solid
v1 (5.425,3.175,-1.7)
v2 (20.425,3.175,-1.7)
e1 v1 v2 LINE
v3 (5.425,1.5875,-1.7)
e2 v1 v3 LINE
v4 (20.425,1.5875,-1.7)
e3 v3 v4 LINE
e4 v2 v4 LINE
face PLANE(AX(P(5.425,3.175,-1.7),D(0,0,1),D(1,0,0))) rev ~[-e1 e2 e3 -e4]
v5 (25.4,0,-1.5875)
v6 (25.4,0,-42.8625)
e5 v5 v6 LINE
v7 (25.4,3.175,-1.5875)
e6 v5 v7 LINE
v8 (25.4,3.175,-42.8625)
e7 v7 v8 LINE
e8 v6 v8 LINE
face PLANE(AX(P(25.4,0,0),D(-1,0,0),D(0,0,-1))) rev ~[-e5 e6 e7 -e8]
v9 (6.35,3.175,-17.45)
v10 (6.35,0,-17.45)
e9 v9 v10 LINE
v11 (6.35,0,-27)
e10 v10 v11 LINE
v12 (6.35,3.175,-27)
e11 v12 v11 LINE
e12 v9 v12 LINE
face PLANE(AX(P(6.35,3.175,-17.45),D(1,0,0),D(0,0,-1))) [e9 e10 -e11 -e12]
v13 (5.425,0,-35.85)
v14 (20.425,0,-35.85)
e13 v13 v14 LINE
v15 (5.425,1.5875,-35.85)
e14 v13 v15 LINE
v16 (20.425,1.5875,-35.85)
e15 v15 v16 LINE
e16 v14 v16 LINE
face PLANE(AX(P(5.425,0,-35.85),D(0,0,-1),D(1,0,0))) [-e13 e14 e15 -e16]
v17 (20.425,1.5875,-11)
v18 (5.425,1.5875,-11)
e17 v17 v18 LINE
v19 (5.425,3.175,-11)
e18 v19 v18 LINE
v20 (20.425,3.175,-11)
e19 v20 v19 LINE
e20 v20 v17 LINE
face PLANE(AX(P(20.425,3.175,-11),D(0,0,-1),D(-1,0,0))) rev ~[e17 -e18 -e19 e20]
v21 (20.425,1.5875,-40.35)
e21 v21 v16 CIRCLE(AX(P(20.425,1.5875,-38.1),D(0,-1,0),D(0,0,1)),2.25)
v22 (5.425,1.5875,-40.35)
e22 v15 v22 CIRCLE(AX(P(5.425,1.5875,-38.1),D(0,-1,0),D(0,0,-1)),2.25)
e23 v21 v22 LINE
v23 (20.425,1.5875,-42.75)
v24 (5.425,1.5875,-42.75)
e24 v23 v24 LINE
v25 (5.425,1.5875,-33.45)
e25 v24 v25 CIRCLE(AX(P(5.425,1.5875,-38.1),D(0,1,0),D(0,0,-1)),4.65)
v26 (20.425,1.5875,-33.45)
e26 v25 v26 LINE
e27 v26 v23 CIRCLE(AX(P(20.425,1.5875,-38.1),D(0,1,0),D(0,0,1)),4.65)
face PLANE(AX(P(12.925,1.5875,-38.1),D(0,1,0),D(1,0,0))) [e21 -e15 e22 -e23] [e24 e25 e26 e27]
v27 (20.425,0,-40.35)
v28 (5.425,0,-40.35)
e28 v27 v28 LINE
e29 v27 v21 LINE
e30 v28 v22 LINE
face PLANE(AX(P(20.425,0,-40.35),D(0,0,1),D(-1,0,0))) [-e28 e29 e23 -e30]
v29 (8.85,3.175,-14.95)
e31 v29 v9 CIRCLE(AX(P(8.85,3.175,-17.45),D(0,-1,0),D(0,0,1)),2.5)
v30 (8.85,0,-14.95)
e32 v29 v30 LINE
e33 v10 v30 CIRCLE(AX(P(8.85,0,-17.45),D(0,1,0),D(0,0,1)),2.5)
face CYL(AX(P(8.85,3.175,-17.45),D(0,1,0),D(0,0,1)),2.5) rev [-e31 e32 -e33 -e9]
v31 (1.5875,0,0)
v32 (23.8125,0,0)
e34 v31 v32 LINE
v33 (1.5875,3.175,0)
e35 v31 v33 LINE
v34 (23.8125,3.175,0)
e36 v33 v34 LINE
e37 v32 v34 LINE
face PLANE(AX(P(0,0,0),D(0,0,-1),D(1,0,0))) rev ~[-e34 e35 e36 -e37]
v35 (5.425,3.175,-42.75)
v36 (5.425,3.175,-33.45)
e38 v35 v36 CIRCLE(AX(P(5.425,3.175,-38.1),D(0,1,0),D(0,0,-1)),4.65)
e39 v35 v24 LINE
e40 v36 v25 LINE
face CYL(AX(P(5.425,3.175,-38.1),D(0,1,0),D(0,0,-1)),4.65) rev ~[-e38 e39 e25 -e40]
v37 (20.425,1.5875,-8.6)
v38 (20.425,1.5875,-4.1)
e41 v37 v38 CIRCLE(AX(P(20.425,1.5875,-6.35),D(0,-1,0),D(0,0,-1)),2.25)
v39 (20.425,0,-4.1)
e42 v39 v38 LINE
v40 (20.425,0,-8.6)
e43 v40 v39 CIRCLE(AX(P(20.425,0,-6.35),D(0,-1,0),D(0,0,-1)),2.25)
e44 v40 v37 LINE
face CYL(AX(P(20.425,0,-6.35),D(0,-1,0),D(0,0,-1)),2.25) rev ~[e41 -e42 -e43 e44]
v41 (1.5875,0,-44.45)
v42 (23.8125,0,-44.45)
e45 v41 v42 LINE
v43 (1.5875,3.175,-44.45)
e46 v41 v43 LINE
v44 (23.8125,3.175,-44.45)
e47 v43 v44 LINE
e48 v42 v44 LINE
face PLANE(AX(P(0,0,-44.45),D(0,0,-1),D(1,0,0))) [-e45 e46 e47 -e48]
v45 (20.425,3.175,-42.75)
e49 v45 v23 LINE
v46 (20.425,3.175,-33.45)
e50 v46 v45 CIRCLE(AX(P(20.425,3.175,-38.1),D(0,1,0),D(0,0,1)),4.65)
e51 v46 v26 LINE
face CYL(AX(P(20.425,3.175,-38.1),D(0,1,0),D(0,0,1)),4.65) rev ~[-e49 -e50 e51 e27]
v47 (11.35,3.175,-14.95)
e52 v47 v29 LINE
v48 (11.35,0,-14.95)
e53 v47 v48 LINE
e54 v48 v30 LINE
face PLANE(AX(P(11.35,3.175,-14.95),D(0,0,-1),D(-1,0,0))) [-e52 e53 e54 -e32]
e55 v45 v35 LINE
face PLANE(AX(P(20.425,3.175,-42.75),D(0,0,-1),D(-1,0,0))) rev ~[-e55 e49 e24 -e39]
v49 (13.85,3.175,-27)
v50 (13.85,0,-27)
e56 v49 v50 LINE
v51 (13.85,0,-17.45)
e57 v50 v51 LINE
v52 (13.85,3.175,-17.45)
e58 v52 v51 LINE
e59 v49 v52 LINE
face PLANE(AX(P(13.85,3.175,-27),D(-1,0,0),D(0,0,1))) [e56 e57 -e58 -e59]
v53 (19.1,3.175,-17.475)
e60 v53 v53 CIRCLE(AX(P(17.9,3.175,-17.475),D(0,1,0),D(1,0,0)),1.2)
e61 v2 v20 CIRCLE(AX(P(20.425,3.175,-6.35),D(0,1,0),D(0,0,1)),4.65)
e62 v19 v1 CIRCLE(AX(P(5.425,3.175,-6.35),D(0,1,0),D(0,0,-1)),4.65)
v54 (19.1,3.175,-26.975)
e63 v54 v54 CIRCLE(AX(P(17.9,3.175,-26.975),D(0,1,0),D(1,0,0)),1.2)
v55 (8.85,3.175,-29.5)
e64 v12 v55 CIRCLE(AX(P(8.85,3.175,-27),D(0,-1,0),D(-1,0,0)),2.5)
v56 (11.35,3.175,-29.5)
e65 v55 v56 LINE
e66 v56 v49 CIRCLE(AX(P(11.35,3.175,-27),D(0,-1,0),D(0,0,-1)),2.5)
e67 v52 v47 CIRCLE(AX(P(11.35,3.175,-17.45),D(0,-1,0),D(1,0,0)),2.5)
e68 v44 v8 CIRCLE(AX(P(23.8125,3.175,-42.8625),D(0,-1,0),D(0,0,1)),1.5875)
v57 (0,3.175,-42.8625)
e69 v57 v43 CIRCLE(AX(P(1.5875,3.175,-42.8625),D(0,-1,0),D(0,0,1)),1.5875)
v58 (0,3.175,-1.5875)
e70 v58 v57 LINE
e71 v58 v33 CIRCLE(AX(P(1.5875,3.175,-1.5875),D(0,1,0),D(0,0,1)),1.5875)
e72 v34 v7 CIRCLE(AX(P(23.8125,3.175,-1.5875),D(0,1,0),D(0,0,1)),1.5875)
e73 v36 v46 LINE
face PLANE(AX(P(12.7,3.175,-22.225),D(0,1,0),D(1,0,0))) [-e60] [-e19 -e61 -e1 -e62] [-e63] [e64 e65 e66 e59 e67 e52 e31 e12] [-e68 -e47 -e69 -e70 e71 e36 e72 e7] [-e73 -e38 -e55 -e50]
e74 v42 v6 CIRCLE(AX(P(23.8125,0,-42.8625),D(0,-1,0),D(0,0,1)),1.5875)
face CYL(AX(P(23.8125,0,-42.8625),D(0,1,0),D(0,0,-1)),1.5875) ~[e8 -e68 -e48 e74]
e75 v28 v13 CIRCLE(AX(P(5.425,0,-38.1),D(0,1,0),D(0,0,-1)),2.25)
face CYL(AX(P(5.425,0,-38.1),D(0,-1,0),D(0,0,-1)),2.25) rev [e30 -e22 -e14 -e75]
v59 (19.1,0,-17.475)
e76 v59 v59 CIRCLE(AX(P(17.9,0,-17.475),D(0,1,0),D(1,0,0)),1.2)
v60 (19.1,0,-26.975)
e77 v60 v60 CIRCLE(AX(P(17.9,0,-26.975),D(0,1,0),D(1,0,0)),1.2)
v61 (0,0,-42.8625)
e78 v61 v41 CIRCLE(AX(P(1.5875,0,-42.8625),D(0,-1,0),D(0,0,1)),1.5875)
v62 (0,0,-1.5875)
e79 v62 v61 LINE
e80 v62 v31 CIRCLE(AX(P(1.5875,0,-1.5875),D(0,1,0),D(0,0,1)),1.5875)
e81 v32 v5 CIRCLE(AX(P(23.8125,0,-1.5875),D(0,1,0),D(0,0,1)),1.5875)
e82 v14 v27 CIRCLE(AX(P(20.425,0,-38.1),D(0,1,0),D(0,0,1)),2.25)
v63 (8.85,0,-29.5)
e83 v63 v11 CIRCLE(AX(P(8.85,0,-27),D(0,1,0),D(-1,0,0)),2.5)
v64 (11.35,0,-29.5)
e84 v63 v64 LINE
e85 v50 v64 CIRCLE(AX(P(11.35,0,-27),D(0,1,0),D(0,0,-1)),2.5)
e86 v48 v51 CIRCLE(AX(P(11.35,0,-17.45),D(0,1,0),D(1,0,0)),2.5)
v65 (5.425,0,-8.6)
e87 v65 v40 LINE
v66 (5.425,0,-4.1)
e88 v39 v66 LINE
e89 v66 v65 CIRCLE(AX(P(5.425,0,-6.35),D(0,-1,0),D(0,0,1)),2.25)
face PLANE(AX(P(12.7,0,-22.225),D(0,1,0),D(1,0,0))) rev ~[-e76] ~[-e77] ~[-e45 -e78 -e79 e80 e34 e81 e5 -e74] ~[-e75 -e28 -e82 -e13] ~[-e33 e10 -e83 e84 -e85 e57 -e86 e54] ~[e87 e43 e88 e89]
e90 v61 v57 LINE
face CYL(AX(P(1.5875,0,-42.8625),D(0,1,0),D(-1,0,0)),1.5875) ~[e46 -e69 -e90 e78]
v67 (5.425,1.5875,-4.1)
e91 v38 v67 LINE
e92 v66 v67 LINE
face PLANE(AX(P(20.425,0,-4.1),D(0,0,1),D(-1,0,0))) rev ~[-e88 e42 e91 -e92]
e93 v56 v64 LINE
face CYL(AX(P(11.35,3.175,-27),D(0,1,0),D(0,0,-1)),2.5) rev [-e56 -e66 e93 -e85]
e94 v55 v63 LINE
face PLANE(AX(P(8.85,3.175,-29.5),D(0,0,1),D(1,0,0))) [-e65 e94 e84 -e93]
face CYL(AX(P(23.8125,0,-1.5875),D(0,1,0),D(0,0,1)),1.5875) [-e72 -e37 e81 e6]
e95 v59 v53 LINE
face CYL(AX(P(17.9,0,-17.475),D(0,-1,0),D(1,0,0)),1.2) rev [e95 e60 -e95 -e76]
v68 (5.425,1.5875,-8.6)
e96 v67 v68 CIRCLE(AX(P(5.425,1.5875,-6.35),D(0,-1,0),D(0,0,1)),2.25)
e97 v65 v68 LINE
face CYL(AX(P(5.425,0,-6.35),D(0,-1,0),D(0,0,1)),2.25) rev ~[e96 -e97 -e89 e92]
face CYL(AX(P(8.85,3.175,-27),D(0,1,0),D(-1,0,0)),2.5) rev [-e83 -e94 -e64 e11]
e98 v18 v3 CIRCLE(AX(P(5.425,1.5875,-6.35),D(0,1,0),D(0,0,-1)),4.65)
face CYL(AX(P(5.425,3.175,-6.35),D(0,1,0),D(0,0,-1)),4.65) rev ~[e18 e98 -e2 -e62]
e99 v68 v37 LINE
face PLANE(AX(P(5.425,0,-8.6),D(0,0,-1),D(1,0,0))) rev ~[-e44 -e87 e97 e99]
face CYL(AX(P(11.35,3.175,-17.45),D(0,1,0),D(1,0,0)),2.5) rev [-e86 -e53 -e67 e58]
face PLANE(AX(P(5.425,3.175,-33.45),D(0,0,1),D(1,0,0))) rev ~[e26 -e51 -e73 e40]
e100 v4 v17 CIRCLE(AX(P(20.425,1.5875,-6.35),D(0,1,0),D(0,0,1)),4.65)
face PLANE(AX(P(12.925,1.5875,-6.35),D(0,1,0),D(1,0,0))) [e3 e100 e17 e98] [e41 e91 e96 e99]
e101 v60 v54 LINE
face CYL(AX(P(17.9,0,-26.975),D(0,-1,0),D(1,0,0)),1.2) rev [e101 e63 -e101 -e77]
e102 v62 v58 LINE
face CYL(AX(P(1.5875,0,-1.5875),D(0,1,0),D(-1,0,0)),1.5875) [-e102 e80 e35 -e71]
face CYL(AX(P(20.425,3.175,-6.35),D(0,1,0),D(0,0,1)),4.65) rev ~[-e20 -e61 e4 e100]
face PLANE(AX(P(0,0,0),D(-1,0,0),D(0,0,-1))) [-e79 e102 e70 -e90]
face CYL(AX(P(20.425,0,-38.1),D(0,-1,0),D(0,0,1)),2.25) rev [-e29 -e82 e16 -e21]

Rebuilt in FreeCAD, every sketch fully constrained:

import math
import FreeCAD as App
import Part
import Sketcher

V = App.Vector


def edges_at(feature, points):
    """Names of the edges that pass closest to the given points."""
    edges = feature.Shape.Edges
    near = lambda p: min(range(len(edges)), key=lambda i: edges[i].distToShape(Part.Vertex(*p))[0])
    return sorted({f"Edge{near(p) + 1}" for p in points})

doc = App.newDocument("Part")
body = doc.addObject("PartDesign::Body", "Body")

sketch1 = body.newObject("Sketcher::SketchObject", "Sketch")
sketch1.AttachmentSupport = (doc.getObject("XZ_Plane"), [""])
sketch1.MapMode = "FlatFace"
sketch1.addGeometry(Part.LineSegment(V(0, -44.45, 0), V(0, 0, 0)), False)
sketch1.addGeometry(Part.LineSegment(V(0, 0, 0), V(25.4, 0, 0)), False)
sketch1.addGeometry(Part.LineSegment(V(25.4, 0, 0), V(25.4, -44.45, 0)), False)
sketch1.addGeometry(Part.LineSegment(V(25.4, -44.45, 0), V(0, -44.45, 0)), False)
sketch1.addGeometry(Part.ArcOfCircle(Part.Circle(V(5.425, -6.35, 0), V(0, 0, 1), 2.25), math.radians(90), math.radians(270)), False)
sketch1.addGeometry(Part.LineSegment(V(5.425, -8.6, 0), V(20.425, -8.6, 0)), False)
sketch1.addGeometry(Part.ArcOfCircle(Part.Circle(V(20.425, -6.35, 0), V(0, 0, 1), 2.25), math.radians(-90), math.radians(90)), False)
sketch1.addGeometry(Part.LineSegment(V(20.425, -4.1, 0), V(5.425, -4.1, 0)), False)
sketch1.addGeometry(Part.Circle(V(17.9, -17.475, 0), V(0, 0, 1), 1.2), False)
sketch1.addGeometry(Part.Circle(V(17.9, -26.975, 0), V(0, 0, 1), 1.2), False)
sketch1.addGeometry(Part.LineSegment(V(20.425, -35.85, 0), V(5.425, -35.85, 0)), False)
sketch1.addGeometry(Part.ArcOfCircle(Part.Circle(V(5.425, -38.1, 0), V(0, 0, 1), 2.25), math.radians(90), math.radians(270)), False)
sketch1.addGeometry(Part.LineSegment(V(5.425, -40.35, 0), V(20.425, -40.35, 0)), False)
sketch1.addGeometry(Part.ArcOfCircle(Part.Circle(V(20.425, -38.1, 0), V(0, 0, 1), 2.25), math.radians(-90), math.radians(90)), False)
sketch1.addConstraint(Sketcher.Constraint("Coincident", 0, 2, 1, 1))
sketch1.addConstraint(Sketcher.Constraint("Coincident", 1, 2, 2, 1))
sketch1.addConstraint(Sketcher.Constraint("Coincident", 2, 2, 3, 1))
sketch1.addConstraint(Sketcher.Constraint("Coincident", 3, 2, 0, 1))
sketch1.addConstraint(Sketcher.Constraint("Tangent", 4, 2, 5, 1))
sketch1.addConstraint(Sketcher.Constraint("Tangent", 5, 2, 6, 1))
sketch1.addConstraint(Sketcher.Constraint("Tangent", 6, 2, 7, 1))
sketch1.addConstraint(Sketcher.Constraint("Tangent", 7, 2, 4, 1))
sketch1.addConstraint(Sketcher.Constraint("Tangent", 10, 2, 11, 1))
sketch1.addConstraint(Sketcher.Constraint("Tangent", 11, 2, 12, 1))
sketch1.addConstraint(Sketcher.Constraint("Tangent", 12, 2, 13, 1))
sketch1.addConstraint(Sketcher.Constraint("Tangent", 13, 2, 10, 1))
sketch1.addConstraint(Sketcher.Constraint("Vertical", 0))
sketch1.addConstraint(Sketcher.Constraint("Horizontal", 1))
sketch1.addConstraint(Sketcher.Constraint("Vertical", 2))
sketch1.addConstraint(Sketcher.Constraint("Horizontal", 3))
sketch1.addConstraint(Sketcher.Constraint("Horizontal", 5))
sketch1.addConstraint(Sketcher.Constraint("Horizontal", 7))
sketch1.addConstraint(Sketcher.Constraint("Horizontal", 10))
sketch1.addConstraint(Sketcher.Constraint("Horizontal", 12))
sketch1.addConstraint(Sketcher.Constraint("Coincident", 0, 2, -1, 1))
sketch1.addConstraint(Sketcher.Constraint("Equal", 8, 9))
sketch1.addConstraint(Sketcher.Constraint("Equal", 6, 11))
sketch1.addConstraint(Sketcher.Constraint("Vertical", 8, 3, 9, 3))
sketch1.addConstraint(Sketcher.Constraint("Vertical", 4, 3, 11, 3))
sketch1.addConstraint(Sketcher.Constraint("Vertical", 6, 3, 13, 3))
sketch1.addConstraint(Sketcher.Constraint("Diameter", 8, 2.4))
sketch1.addConstraint(Sketcher.Constraint("DistanceX", 5, 1, 5, 2, 15.0))
sketch1.addConstraint(Sketcher.Constraint("Radius", 4, 2.25))
sketch1.addConstraint(Sketcher.Constraint("DistanceX", 1, 1, 1, 2, 25.4))
sketch1.addConstraint(Sketcher.Constraint("DistanceY", 0, 1, 0, 2, 44.45))
sketch1.addConstraint(Sketcher.Constraint("DistanceX", -1, 1, 8, 3, 17.9))
sketch1.addConstraint(Sketcher.Constraint("DistanceY", 11, 3, -1, 1, 38.1))
sketch1.addConstraint(Sketcher.Constraint("DistanceY", 4, 2, -1, 1, 8.6))
sketch1.addConstraint(Sketcher.Constraint("DistanceY", 9, 3, 8, 3, 9.5))
sketch1.addConstraint(Sketcher.Constraint("DistanceX", -1, 1, 4, 3, 5.425))
sketch1.addConstraint(Sketcher.Constraint("DistanceY", 8, 3, -1, 1, 17.475))
pad1 = body.newObject("PartDesign::Pad", "Pad")
pad1.Profile = sketch1
pad1.Length = 3.175
pad1.Reversed = True

sketch2 = body.newObject("Sketcher::SketchObject", "Sketch001")
sketch2.AttachmentSupport = (doc.getObject("XZ_Plane"), [""])
sketch2.MapMode = "FlatFace"
sketch2.AttachmentOffset = App.Placement(V(0, 0, -3.175), App.Rotation())
sketch2.addGeometry(Part.LineSegment(V(8.85, -14.95, 0), V(11.35, -14.95, 0)), False)
sketch2.addGeometry(Part.ArcOfCircle(Part.Circle(V(11.35, -17.45, 0), V(0, 0, 1), 2.5), math.radians(0), math.radians(90)), False)
sketch2.addGeometry(Part.LineSegment(V(13.85, -17.45, 0), V(13.85, -27, 0)), False)
sketch2.addGeometry(Part.ArcOfCircle(Part.Circle(V(11.35, -27, 0), V(0, 0, 1), 2.5), math.radians(-90), math.radians(0)), False)
sketch2.addGeometry(Part.LineSegment(V(11.35, -29.5, 0), V(8.85, -29.5, 0)), False)
sketch2.addGeometry(Part.ArcOfCircle(Part.Circle(V(8.85, -27, 0), V(0, 0, 1), 2.5), math.radians(180), math.radians(270)), False)
sketch2.addGeometry(Part.LineSegment(V(6.35, -27, 0), V(6.35, -17.45, 0)), False)
sketch2.addGeometry(Part.ArcOfCircle(Part.Circle(V(8.85, -17.45, 0), V(0, 0, 1), 2.5), math.radians(90), math.radians(180)), False)
sketch2.addConstraint(Sketcher.Constraint("Tangent", 0, 2, 1, 2))
sketch2.addConstraint(Sketcher.Constraint("Tangent", 1, 1, 2, 1))
sketch2.addConstraint(Sketcher.Constraint("Tangent", 2, 2, 3, 2))
sketch2.addConstraint(Sketcher.Constraint("Tangent", 3, 1, 4, 1))
sketch2.addConstraint(Sketcher.Constraint("Tangent", 4, 2, 5, 2))
sketch2.addConstraint(Sketcher.Constraint("Tangent", 5, 1, 6, 1))
sketch2.addConstraint(Sketcher.Constraint("Tangent", 6, 2, 7, 2))
sketch2.addConstraint(Sketcher.Constraint("Tangent", 7, 1, 0, 1))
sketch2.addConstraint(Sketcher.Constraint("Horizontal", 0))
sketch2.addConstraint(Sketcher.Constraint("Vertical", 2))
sketch2.addConstraint(Sketcher.Constraint("Horizontal", 4))
sketch2.addConstraint(Sketcher.Constraint("Vertical", 6))
sketch2.addConstraint(Sketcher.Constraint("Equal", 1, 3))
sketch2.addConstraint(Sketcher.Constraint("Equal", 3, 5))
sketch2.addConstraint(Sketcher.Constraint("Equal", 5, 7))
sketch2.addConstraint(Sketcher.Constraint("Radius", 1, 2.5))
sketch2.addConstraint(Sketcher.Constraint("DistanceX", 0, 1, 0, 2, 2.5))
sketch2.addConstraint(Sketcher.Constraint("DistanceY", 3, 3, -1, 1, 27.0))
sketch2.addConstraint(Sketcher.Constraint("DistanceY", 2, 2, 2, 1, 9.55))
sketch2.addConstraint(Sketcher.Constraint("DistanceX", -1, 1, 1, 3, 11.35))
pocket1 = body.newObject("PartDesign::Pocket", "Pocket")
pocket1.Profile = sketch2
pocket1.Type = "ThroughAll"
pocket1.Reversed = True
doc.recompute()

fillet = body.newObject("PartDesign::Fillet", "Fillet")
fillet.Base = (pocket1, edges_at(pocket1, [
    (0, 1.587, -44.45),
    (25.4, 1.587, -44.45),
    (25.4, 1.587, 0),
    (0, 1.587, 0),
]))
fillet.Radius = 1.5875

sketch3 = body.newObject("Sketcher::SketchObject", "Sketch002")
sketch3.AttachmentSupport = (doc.getObject("XZ_Plane"), [""])
sketch3.MapMode = "FlatFace"
sketch3.AttachmentOffset = App.Placement(V(0, 0, -3.175), App.Rotation())
sketch3.addGeometry(Part.LineSegment(V(5.425, -33.45, 0), V(20.425, -33.45, 0)), False)
sketch3.addGeometry(Part.ArcOfCircle(Part.Circle(V(20.425, -38.1, 0), V(0, 0, 1), 4.65), math.radians(-90), math.radians(90)), False)
sketch3.addGeometry(Part.LineSegment(V(20.425, -42.75, 0), V(5.425, -42.75, 0)), False)
sketch3.addGeometry(Part.ArcOfCircle(Part.Circle(V(5.425, -38.1, 0), V(0, 0, 1), 4.65), math.radians(90), math.radians(270)), False)
sketch3.addGeometry(Part.LineSegment(V(5.425, -1.7, 0), V(20.425, -1.7, 0)), False)
sketch3.addGeometry(Part.ArcOfCircle(Part.Circle(V(20.425, -6.35, 0), V(0, 0, 1), 4.65), math.radians(-90), math.radians(90)), False)
sketch3.addGeometry(Part.LineSegment(V(20.425, -11, 0), V(5.425, -11, 0)), False)
sketch3.addGeometry(Part.ArcOfCircle(Part.Circle(V(5.425, -6.35, 0), V(0, 0, 1), 4.65), math.radians(90), math.radians(270)), False)
sketch3.addConstraint(Sketcher.Constraint("Tangent", 0, 2, 1, 2))
sketch3.addConstraint(Sketcher.Constraint("Tangent", 1, 1, 2, 1))
sketch3.addConstraint(Sketcher.Constraint("Tangent", 2, 2, 3, 2))
sketch3.addConstraint(Sketcher.Constraint("Tangent", 3, 1, 0, 1))
sketch3.addConstraint(Sketcher.Constraint("Tangent", 4, 2, 5, 2))
sketch3.addConstraint(Sketcher.Constraint("Tangent", 5, 1, 6, 1))
sketch3.addConstraint(Sketcher.Constraint("Tangent", 6, 2, 7, 2))
sketch3.addConstraint(Sketcher.Constraint("Tangent", 7, 1, 4, 1))
sketch3.addConstraint(Sketcher.Constraint("Horizontal", 0))
sketch3.addConstraint(Sketcher.Constraint("Horizontal", 2))
sketch3.addConstraint(Sketcher.Constraint("Horizontal", 4))
sketch3.addConstraint(Sketcher.Constraint("Horizontal", 6))
sketch3.addConstraint(Sketcher.Constraint("Equal", 3, 5))
sketch3.addConstraint(Sketcher.Constraint("Vertical", 1, 3, 5, 3))
sketch3.addConstraint(Sketcher.Constraint("Vertical", 3, 3, 7, 3))
sketch3.addConstraint(Sketcher.Constraint("DistanceX", 0, 1, 0, 2, 15.0))
sketch3.addConstraint(Sketcher.Constraint("Radius", 1, 4.65))
sketch3.addConstraint(Sketcher.Constraint("DistanceY", 5, 1, -1, 1, 11.0))
sketch3.addConstraint(Sketcher.Constraint("DistanceY", 1, 3, -1, 1, 38.1))
sketch3.addConstraint(Sketcher.Constraint("DistanceX", -1, 1, 1, 3, 20.425))
pocket2 = body.newObject("PartDesign::Pocket", "Pocket001")
pocket2.Profile = sketch3
pocket2.Length = 1.5875
pocket2.Reversed = True

doc.recompute()
